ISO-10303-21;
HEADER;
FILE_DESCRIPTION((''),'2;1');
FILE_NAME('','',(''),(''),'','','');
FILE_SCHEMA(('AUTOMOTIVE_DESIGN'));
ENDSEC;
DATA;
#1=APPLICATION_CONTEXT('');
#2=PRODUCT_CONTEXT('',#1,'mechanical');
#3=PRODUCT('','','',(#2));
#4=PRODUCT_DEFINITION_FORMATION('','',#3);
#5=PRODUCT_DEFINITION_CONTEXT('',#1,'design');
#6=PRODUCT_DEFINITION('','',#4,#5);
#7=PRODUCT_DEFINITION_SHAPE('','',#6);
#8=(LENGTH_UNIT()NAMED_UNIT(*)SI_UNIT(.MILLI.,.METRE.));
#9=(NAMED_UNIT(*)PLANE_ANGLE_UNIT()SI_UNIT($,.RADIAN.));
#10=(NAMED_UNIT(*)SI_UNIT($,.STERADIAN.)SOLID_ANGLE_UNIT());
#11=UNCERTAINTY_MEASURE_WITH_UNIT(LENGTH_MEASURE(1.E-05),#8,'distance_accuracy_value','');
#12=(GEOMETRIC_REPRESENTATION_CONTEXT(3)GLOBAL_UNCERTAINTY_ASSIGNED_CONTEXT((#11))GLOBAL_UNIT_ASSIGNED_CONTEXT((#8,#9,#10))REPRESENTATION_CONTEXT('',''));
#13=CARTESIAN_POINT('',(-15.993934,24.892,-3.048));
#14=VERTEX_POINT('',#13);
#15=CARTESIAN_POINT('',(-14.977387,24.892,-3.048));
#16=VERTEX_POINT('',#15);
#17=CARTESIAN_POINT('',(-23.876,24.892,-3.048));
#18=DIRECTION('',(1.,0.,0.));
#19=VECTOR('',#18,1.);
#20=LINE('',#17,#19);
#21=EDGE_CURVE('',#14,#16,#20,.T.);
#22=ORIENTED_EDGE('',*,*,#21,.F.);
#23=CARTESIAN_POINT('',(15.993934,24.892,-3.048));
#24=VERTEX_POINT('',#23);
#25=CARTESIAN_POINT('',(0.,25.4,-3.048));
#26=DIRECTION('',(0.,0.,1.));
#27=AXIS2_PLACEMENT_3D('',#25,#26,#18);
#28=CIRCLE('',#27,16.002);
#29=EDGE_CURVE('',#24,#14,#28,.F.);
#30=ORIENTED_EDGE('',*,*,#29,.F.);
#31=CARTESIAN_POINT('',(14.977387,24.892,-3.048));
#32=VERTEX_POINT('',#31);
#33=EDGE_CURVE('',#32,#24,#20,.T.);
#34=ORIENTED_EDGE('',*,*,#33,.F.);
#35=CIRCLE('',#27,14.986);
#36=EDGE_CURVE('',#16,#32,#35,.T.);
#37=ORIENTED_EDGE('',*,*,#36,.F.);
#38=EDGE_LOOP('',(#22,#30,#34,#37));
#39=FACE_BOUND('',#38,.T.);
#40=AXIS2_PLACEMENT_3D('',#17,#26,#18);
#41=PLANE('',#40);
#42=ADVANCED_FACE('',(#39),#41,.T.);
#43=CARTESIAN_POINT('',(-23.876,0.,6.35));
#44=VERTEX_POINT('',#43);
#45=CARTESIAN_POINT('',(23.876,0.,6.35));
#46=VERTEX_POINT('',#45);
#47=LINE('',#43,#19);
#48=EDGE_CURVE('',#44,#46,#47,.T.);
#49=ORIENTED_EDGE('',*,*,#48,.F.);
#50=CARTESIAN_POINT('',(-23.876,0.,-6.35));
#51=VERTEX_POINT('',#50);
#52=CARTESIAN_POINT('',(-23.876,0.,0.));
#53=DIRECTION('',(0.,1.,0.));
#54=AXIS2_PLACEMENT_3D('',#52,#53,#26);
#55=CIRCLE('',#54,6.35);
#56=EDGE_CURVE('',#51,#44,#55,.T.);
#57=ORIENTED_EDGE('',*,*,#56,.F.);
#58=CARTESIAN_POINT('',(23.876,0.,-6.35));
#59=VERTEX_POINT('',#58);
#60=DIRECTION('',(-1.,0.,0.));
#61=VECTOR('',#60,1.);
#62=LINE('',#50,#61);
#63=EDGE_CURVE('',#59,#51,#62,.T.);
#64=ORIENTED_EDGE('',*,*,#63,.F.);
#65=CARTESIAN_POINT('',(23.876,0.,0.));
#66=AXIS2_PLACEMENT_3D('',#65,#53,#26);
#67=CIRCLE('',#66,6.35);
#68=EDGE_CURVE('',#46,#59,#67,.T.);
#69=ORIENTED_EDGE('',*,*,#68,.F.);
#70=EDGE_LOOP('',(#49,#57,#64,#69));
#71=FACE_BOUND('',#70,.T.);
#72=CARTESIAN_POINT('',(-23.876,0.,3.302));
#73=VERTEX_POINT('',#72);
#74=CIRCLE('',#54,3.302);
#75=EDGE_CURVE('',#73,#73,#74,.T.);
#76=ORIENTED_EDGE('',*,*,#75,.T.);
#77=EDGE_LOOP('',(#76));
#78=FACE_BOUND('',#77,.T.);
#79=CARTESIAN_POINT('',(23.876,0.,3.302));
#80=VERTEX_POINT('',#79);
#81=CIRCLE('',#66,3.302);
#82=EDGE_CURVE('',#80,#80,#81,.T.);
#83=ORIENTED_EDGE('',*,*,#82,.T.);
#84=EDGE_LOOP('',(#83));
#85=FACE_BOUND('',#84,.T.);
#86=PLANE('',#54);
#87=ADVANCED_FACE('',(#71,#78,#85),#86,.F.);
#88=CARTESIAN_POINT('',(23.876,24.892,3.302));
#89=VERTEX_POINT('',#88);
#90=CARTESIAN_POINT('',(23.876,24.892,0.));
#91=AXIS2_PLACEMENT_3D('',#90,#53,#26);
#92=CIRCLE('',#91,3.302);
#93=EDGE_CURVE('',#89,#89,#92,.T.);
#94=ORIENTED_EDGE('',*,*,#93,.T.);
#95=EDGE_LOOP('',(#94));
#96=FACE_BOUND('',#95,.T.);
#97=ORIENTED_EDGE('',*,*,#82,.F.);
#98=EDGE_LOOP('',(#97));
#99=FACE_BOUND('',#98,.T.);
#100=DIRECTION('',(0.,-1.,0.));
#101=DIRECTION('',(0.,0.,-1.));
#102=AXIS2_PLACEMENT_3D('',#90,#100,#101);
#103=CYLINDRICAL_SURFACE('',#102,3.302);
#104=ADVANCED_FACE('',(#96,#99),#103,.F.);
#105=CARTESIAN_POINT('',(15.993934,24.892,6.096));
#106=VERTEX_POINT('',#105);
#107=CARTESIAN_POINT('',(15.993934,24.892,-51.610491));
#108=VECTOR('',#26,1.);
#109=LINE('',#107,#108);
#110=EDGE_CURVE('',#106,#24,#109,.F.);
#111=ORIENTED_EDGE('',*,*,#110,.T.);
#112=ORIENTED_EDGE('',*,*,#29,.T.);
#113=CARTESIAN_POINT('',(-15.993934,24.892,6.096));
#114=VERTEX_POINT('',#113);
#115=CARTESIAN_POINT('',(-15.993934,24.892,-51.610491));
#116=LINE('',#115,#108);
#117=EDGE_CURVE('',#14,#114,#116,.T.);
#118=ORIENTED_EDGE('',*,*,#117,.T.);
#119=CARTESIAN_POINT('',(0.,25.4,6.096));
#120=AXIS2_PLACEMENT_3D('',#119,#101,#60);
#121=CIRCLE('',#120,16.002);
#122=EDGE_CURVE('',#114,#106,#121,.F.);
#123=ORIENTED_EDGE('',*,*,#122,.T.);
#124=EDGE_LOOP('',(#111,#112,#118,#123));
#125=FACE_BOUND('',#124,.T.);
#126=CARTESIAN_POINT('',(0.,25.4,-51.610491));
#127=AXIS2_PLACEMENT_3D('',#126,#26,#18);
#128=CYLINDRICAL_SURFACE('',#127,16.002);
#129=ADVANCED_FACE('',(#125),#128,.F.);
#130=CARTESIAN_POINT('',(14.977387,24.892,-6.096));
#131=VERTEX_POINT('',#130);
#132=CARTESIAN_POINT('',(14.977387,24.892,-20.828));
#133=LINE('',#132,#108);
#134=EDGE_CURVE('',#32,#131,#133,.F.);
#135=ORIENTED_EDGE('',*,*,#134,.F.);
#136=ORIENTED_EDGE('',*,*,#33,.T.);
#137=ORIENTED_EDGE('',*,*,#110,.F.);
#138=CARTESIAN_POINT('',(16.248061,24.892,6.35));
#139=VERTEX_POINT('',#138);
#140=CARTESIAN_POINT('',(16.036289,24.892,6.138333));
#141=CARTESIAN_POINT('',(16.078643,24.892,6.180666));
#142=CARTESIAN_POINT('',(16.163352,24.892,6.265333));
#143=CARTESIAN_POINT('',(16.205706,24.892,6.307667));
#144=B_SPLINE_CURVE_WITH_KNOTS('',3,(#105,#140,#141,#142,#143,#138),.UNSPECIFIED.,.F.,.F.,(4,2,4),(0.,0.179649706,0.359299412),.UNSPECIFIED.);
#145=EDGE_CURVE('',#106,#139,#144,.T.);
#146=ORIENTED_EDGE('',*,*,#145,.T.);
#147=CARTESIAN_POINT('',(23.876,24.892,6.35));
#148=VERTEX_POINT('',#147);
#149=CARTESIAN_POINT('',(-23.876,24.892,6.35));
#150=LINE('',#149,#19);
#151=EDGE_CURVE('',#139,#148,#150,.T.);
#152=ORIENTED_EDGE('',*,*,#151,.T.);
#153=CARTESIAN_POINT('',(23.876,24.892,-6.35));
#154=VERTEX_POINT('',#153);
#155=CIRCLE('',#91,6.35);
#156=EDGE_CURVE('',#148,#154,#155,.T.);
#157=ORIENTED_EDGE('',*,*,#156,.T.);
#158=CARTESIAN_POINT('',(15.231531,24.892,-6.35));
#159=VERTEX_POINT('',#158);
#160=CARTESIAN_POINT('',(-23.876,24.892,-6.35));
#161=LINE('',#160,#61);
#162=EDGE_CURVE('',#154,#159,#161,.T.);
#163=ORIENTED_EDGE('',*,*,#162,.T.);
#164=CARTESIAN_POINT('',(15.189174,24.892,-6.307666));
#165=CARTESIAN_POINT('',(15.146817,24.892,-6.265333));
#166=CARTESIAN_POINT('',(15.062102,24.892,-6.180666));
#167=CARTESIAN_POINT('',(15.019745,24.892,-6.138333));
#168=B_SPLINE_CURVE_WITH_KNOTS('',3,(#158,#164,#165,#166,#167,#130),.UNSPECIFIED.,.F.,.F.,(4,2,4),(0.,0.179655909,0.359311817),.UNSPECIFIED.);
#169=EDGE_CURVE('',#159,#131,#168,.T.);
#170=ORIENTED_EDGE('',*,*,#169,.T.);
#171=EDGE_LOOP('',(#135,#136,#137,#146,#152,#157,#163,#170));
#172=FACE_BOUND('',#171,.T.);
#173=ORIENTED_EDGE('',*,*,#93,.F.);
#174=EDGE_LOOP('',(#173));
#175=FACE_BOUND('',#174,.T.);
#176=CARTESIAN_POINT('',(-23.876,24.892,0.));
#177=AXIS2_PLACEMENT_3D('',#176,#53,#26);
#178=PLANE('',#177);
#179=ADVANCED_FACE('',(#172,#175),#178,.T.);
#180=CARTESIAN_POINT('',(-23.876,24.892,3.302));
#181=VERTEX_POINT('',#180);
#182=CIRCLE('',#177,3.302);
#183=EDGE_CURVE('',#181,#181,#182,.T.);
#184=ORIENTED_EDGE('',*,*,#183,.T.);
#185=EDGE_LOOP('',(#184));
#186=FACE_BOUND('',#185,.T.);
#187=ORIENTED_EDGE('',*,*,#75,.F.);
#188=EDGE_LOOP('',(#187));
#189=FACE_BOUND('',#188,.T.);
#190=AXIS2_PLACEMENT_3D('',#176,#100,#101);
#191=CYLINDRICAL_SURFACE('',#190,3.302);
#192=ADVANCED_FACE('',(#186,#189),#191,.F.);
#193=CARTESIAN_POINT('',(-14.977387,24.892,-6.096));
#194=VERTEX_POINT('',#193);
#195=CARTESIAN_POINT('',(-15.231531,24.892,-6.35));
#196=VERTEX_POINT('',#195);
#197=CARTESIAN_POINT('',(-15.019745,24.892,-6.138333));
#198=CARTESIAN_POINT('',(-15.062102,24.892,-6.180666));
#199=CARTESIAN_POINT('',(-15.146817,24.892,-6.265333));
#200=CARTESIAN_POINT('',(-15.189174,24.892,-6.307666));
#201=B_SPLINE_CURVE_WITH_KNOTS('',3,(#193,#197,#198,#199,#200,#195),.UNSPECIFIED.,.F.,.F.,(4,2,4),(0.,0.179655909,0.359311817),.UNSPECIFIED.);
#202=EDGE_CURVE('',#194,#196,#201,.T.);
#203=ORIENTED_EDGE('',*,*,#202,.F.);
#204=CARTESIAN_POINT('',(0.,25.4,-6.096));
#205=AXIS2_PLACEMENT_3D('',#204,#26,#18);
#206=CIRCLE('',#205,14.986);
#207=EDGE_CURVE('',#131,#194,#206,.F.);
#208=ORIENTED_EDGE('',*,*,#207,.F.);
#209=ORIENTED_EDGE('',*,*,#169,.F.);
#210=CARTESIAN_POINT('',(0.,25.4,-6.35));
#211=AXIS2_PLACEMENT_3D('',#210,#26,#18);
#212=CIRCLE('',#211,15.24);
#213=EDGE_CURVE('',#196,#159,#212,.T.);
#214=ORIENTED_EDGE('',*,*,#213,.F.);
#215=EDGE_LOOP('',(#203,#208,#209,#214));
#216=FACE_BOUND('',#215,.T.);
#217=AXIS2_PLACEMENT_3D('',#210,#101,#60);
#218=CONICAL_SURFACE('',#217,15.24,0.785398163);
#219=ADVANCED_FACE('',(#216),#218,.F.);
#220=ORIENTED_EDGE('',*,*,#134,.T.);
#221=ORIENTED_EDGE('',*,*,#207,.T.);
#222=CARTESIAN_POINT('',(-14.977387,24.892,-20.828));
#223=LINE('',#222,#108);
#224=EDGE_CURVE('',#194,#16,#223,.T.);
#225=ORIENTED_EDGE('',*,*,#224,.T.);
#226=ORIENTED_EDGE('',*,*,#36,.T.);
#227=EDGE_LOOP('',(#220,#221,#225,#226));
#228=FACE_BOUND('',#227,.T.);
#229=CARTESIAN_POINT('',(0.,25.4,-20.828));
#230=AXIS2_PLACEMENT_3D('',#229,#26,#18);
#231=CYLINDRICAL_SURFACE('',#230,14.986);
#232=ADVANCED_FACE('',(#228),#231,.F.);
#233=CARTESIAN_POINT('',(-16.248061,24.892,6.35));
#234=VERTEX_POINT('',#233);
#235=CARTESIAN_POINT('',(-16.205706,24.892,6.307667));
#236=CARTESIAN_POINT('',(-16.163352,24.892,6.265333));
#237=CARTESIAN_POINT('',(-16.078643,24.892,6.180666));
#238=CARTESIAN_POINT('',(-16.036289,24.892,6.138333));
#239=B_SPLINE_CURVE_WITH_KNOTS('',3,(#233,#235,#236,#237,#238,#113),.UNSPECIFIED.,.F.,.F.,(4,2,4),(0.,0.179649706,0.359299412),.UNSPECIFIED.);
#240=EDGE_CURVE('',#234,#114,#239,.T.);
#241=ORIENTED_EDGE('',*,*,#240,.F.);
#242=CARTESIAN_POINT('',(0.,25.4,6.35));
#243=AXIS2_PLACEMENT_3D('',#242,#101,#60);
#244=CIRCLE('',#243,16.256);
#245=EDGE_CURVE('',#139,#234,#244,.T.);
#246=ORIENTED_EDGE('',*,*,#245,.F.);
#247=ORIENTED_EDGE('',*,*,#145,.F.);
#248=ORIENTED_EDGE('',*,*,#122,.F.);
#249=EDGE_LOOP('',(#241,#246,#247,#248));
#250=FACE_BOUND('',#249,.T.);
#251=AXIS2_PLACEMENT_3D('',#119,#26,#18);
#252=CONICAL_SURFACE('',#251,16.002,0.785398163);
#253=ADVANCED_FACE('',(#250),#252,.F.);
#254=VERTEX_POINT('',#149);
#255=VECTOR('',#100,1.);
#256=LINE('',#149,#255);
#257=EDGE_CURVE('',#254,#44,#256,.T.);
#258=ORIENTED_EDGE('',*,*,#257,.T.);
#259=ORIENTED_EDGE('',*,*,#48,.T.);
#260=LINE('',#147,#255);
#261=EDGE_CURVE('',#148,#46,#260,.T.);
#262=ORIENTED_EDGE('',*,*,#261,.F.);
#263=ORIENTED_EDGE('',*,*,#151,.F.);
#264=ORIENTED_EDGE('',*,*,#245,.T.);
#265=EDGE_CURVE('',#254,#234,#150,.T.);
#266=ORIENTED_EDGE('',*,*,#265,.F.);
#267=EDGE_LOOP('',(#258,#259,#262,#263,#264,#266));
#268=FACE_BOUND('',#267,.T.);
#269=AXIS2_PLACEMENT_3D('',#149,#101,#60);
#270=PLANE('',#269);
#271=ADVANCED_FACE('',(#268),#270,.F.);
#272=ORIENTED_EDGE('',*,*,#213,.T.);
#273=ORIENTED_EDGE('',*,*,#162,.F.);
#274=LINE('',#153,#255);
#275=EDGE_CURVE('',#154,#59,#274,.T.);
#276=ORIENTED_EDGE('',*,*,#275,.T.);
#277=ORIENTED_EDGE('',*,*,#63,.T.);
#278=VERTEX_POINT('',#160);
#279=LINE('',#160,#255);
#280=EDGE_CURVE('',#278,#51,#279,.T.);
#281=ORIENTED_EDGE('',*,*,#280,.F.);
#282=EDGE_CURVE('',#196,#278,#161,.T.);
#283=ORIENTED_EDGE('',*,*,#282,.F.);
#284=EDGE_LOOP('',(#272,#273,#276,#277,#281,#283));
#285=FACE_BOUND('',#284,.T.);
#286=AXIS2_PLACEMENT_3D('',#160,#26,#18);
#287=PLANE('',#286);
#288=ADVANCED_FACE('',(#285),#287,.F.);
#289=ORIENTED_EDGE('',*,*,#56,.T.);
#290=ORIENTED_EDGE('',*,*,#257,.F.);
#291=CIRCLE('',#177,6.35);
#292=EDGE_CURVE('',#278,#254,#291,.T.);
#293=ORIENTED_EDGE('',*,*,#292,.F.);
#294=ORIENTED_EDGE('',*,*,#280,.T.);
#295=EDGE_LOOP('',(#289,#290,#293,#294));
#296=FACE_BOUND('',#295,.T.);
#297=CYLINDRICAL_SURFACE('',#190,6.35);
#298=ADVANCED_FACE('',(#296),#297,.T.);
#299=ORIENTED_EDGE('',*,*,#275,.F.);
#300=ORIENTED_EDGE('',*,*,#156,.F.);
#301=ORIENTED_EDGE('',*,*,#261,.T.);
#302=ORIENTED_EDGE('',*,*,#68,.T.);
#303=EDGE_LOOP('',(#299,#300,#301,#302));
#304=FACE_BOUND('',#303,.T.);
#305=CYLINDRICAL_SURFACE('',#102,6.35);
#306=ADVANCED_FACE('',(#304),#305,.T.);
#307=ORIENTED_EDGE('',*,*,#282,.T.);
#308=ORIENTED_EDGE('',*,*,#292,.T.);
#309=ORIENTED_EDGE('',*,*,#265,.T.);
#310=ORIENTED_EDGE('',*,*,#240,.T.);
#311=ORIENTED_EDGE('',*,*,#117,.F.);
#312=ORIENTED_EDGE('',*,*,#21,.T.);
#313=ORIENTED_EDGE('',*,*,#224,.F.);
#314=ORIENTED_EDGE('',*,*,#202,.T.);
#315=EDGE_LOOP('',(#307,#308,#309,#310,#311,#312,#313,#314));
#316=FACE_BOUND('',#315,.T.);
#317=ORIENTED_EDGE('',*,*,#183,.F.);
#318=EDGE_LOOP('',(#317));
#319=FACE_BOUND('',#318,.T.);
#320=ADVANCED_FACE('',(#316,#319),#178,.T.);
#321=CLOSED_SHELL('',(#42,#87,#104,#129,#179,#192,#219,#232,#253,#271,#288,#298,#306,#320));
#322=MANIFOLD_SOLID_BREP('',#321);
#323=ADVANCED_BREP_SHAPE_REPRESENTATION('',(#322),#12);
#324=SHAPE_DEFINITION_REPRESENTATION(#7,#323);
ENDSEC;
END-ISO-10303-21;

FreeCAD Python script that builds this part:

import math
import FreeCAD as App
import Part
import Sketcher

V = App.Vector
Q = App.Units.Quantity


def edges_at(feature, points):
    """Names of the edges that pass closest to the given points."""
    edges = feature.Shape.Edges
    near = lambda p: min(range(len(edges)), key=lambda i: edges[i].distToShape(Part.Vertex(*p))[0])
    return sorted({f"Edge{near(p) + 1}" for p in points})

doc = App.newDocument("Part")
body = doc.addObject("PartDesign::Body", "Body")

# Sketch on XZ plane
sketch1 = body.newObject("Sketcher::SketchObject", "Sketch")
sketch1.AttachmentSupport = (doc.getObject("XZ_Plane"), [""])
sketch1.MapMode = "FlatFace"
sketch1.addGeometry(Part.LineSegment(V(23.9, -6.3, 0), V(-23.9, -6.3, 0)), False)
sketch1.addGeometry(Part.ArcOfCircle(Part.Circle(V(-23.9, 0, 0), V(0, 0, 1), 6.3), math.radians(90), math.radians(270)), False)
sketch1.addGeometry(Part.LineSegment(V(-23.9, 6.3, 0), V(23.9, 6.3, 0)), False)
sketch1.addGeometry(Part.ArcOfCircle(Part.Circle(V(23.9, 0, 0), V(0, 0, 1), 6.3), math.radians(-90), math.radians(90)), False)
sketch1.addGeometry(Part.Circle(V(23.9, 0, 0), V(0, 0, 1), 3.3), False)
sketch1.addGeometry(Part.Circle(V(-23.9, 0, 0), V(0, 0, 1), 3.3), False)
sketch1.addConstraint(Sketcher.Constraint("Tangent", 0, 2, 1, 2))
sketch1.addConstraint(Sketcher.Constraint("Tangent", 1, 1, 2, 1))
sketch1.addConstraint(Sketcher.Constraint("Tangent", 2, 2, 3, 2))
sketch1.addConstraint(Sketcher.Constraint("Tangent", 3, 1, 0, 1))
sketch1.addConstraint(Sketcher.Constraint("Horizontal", 0))
sketch1.addConstraint(Sketcher.Constraint("Horizontal", 2))
sketch1.addConstraint(Sketcher.Constraint("Coincident", 4, 3, 3, 3))
sketch1.addConstraint(Sketcher.Constraint("Coincident", 5, 3, 1, 3))
sketch1.addConstraint(Sketcher.Constraint("Equal", 4, 5))
sketch1.addConstraint(Sketcher.Constraint("Symmetric", 1, 3, 3, 3, -1, 1))
sketch1.addConstraint(Sketcher.Constraint("Diameter", 4, Q("0.26 in")))
sketch1.addConstraint(Sketcher.Constraint("Radius", 1, Q("0.25 in")))
sketch1.addConstraint(Sketcher.Constraint("DistanceX", 0, 2, 0, 1, Q("1.88 in")))
pad1 = body.newObject("PartDesign::Pad", "Pad")
pad1.Profile = sketch1
pad1.Length = Q("0.98 in")
pad1.Reversed = True

# Sketch on XY plane
sketch2 = body.newObject("Sketcher::SketchObject", "Sketch001")
sketch2.AttachmentSupport = (doc.getObject("XY_Plane"), [""])
sketch2.MapMode = "FlatFace"
sketch2.AttachmentOffset = App.Placement(V(0, 0, 0.25 * 25.4), App.Rotation())
sketch2.addGeometry(Part.Circle(V(0, 25, 0), V(0, 0, 1), 16), False)
sketch2.addConstraint(Sketcher.Constraint("PointOnObject", 0, 3, -2))
sketch2.addConstraint(Sketcher.Constraint("Diameter", 0, Q("1.26 in")))
sketch2.addConstraint(Sketcher.Constraint("DistanceY", -1, 1, 0, 3, Q("1 in")))
pocket1 = body.newObject("PartDesign::Pocket", "Pocket")
pocket1.Profile = sketch2
pocket1.Length = Q("0.37 in")

# Sketch on XY plane
sketch3 = body.newObject("Sketcher::SketchObject", "Sketch002")
sketch3.AttachmentSupport = (doc.getObject("XY_Plane"), [""])
sketch3.MapMode = "FlatFace"
sketch3.AttachmentOffset = App.Placement(V(0, 0, -0.12 * 25.4), App.Rotation())
sketch3.addGeometry(Part.Circle(V(0, 25, 0), V(0, 0, 1), 15), False)
sketch3.addConstraint(Sketcher.Constraint("PointOnObject", 0, 3, -2))
sketch3.addConstraint(Sketcher.Constraint("Diameter", 0, Q("1.18 in")))
sketch3.addConstraint(Sketcher.Constraint("DistanceY", -1, 1, 0, 3, Q("1 in")))
pocket2 = body.newObject("PartDesign::Pocket", "Pocket001")
pocket2.Profile = sketch3
pocket2.Length = Q("0.7 in")
doc.recompute()

chamfer = body.newObject("PartDesign::Chamfer", "Chamfer")
chamfer.Base = (pocket2, edges_at(pocket2, [(0, 9.398, 6.35), (0, 10.414, -6.35)]))
chamfer.Size = Q("0.01 in")

doc.recompute()
